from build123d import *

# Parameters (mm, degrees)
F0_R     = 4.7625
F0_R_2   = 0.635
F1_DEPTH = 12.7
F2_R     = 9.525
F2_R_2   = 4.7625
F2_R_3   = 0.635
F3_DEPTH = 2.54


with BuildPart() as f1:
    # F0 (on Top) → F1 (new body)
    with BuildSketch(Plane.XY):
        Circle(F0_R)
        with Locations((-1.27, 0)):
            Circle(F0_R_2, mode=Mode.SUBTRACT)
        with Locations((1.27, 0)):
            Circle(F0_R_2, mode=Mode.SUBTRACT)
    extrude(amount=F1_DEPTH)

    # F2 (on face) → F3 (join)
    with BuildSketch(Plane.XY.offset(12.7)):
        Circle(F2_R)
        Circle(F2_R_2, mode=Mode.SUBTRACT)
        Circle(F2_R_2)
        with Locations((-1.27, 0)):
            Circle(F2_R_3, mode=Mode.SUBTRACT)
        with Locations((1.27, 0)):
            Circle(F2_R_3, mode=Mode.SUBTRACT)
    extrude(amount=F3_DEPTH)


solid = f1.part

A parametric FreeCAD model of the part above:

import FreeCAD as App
import Part
import Sketcher

V = App.Vector
Q = App.Units.Quantity

doc = App.newDocument("Part")
body = doc.addObject("PartDesign::Body", "Body")

# Sketch on XY plane
sketch1 = body.newObject("Sketcher::SketchObject", "Sketch")
sketch1.AttachmentSupport = (doc.getObject("XY_Plane"), [""])
sketch1.MapMode = "FlatFace"
sketch1.addGeometry([
    Part.Circle(V(0, 0, 0), V(0, 0, 1), 4.7625),
    Part.Circle(V(-1.27, 0, 0), V(0, 0, 1), 0.635),
    Part.Circle(V(1.27, 0, 0), V(0, 0, 1), 0.635),
], False)
sketch1.addConstraint([
    Sketcher.Constraint("Coincident", 0, 3, -1, 1),
    Sketcher.Constraint("Equal", 1, 2),
    Sketcher.Constraint("Symmetric", 1, 3, 2, 3, -1, 1),
    Sketcher.Constraint("PointOnObject", 1, 3, -1),
    Sketcher.Constraint("Diameter", 1, Q("0.05 in")),
    Sketcher.Constraint("Diameter", 0, Q("0.375 in")),
    Sketcher.Constraint("DistanceX", 1, 3, 2, 3, Q("0.1 in")),
])
pad1 = body.newObject("PartDesign::Pad", "Pad")
pad1.Profile = sketch1
pad1.Length = Q("0.5 in")

# Sketch on XY plane
sketch2 = body.newObject("Sketcher::SketchObject", "Sketch001")
sketch2.AttachmentSupport = (doc.getObject("XY_Plane"), [""])
sketch2.MapMode = "FlatFace"
sketch2.AttachmentOffset = App.Placement(V(0, 0, 0.5 * 25.4), App.Rotation())
sketch2.addGeometry([
    Part.Circle(V(0, 0, 0), V(0, 0, 1), 9.525),
    Part.Circle(V(-1.27, 0, 0), V(0, 0, 1), 0.635),
    Part.Circle(V(1.27, 0, 0), V(0, 0, 1), 0.635),
], False)
sketch2.addConstraint([
    Sketcher.Constraint("Coincident", 0, 3, -1, 1),
    Sketcher.Constraint("Equal", 1, 2),
    Sketcher.Constraint("Symmetric", 1, 3, 2, 3, -1, 1),
    Sketcher.Constraint("PointOnObject", 1, 3, -1),
    Sketcher.Constraint("Diameter", 0, Q("0.75 in")),
    Sketcher.Constraint("Diameter", 1, Q("0.05 in")),
    Sketcher.Constraint("DistanceX", 1, 3, 2, 3, Q("0.1 in")),
])
pad2 = body.newObject("PartDesign::Pad", "Pad001")
pad2.Profile = sketch2
pad2.Length = Q("0.1 in")

doc.recompute()
